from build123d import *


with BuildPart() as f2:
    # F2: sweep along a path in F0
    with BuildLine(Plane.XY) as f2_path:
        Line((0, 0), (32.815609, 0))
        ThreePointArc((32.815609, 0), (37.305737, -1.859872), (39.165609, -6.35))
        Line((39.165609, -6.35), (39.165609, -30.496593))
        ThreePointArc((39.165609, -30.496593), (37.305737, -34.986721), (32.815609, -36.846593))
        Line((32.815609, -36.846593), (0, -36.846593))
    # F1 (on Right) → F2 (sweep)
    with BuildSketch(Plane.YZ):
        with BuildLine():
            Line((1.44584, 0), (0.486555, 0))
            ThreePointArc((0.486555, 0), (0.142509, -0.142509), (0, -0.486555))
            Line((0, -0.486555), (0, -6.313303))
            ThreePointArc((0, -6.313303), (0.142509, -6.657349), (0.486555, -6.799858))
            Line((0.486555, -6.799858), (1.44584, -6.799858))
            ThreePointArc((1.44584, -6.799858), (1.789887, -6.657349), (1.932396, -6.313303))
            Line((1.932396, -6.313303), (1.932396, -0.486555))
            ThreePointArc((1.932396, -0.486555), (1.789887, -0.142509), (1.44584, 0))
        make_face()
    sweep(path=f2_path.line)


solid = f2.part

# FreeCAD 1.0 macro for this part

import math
import FreeCAD as App
import Part
import Sketcher
Q = App.Units.Quantity

doc = App.newDocument("Part")
body = doc.addObject("PartDesign::Body", "Body")

# Sketch on YZ plane
sketch1 = doc.addObject("Sketcher::SketchObject", "Sketch")
body.addObject(sketch1)
sketch1.AttachmentSupport = (doc.YZ_Plane, [""])
sketch1.MapMode = "FlatFace"
sketch1.addGeometry([
    Part.LineSegment(App.Vector(1.45, 0, 0), App.Vector(0.49, 0, 0)),  # 0
    Part.ArcOfCircle(Part.Circle(App.Vector(0.49, -0.49, 0), App.Vector(0, 0, 1), 0.49), math.radians(90), math.radians(180)),  # 1
    Part.LineSegment(App.Vector(0, -0.49, 0), App.Vector(0, -6.31, 0)),  # 2
    Part.ArcOfCircle(Part.Circle(App.Vector(0.49, -6.31, 0), App.Vector(0, 0, 1), 0.49), math.radians(-180), math.radians(-90)),  # 3
    Part.LineSegment(App.Vector(0.49, -6.8, 0), App.Vector(1.45, -6.8, 0)),  # 4
    Part.ArcOfCircle(Part.Circle(App.Vector(1.45, -6.31, 0), App.Vector(0, 0, 1), 0.49), math.radians(-90), math.radians(0)),  # 5
    Part.LineSegment(App.Vector(1.93, -6.31, 0), App.Vector(1.93, -0.49, 0)),  # 6
    Part.ArcOfCircle(Part.Circle(App.Vector(1.45, -0.49, 0), App.Vector(0, 0, 1), 0.49), math.radians(0), math.radians(90)),  # 7
], False)
sketch1.addConstraint([
    Sketcher.Constraint("Coincident", 0, 2, 1, 1),
    Sketcher.Constraint("Coincident", 1, 2, 2, 1),
    Sketcher.Constraint("Coincident", 2, 2, 3, 1),
    Sketcher.Constraint("Coincident", 3, 2, 4, 1),
    Sketcher.Constraint("Tangent", 4, 2, 5, 1),
    Sketcher.Constraint("Coincident", 5, 2, 6, 1),
    Sketcher.Constraint("Coincident", 6, 2, 7, 1),
    Sketcher.Constraint("Tangent", 7, 2, 0, 1),
    Sketcher.Constraint("Horizontal", 0),
    Sketcher.Constraint("Vertical", 2),
    Sketcher.Constraint("Horizontal", 4),
    Sketcher.Constraint("Vertical", 6),
    Sketcher.Constraint("Equal", 1, 3),
    Sketcher.Constraint("Equal", 3, 5),
    Sketcher.Constraint("Equal", 5, 7),
    Sketcher.Constraint("PointOnObject", 0, 2, -1),
    Sketcher.Constraint("PointOnObject", 1, 2, -2),
    Sketcher.Constraint("Horizontal", 7, 3, 1, 2),
    Sketcher.Constraint("Horizontal", 5, 3, 2, 2),
    Sketcher.Constraint("Horizontal", 2, 2, 5, 2),
    Sketcher.Constraint("Horizontal", 1, 2, 6, 2),
    Sketcher.Constraint("Vertical", 3, 3, 0, 2),
    Sketcher.Constraint("Vertical", 0, 2, 3, 2),
    Sketcher.Constraint("Radius", 1, 0.486556),
    Sketcher.Constraint("DistanceY", 2, 2, 2, 1, 5.826748),
    Sketcher.Constraint("DistanceX", 0, 2, 0, 1, 0.959285),
])

# Sketch on XY plane
sketch2 = doc.addObject("Sketcher::SketchObject", "Sketch001")
body.addObject(sketch2)
sketch2.AttachmentSupport = (doc.XY_Plane, [""])
sketch2.MapMode = "FlatFace"
sketch2.addGeometry([
    Part.LineSegment(App.Vector(0, 0, 0), App.Vector(33, 0, 0)),  # 0
    Part.ArcOfCircle(Part.Circle(App.Vector(33, -6, 0), App.Vector(0, 0, 1), 6), math.radians(0), math.radians(90)),  # 1
    Part.LineSegment(App.Vector(39, -6, 0), App.Vector(39, -30, 0)),  # 2
    Part.ArcOfCircle(Part.Circle(App.Vector(33, -30, 0), App.Vector(0, 0, 1), 6), math.radians(-90), math.radians(0)),  # 3
    Part.LineSegment(App.Vector(33, -37, 0), App.Vector(0, -37, 0)),  # 4
], False)
sketch2.addConstraint([
    Sketcher.Constraint("Tangent", 0, 2, 1, 2),
    Sketcher.Constraint("Tangent", 1, 1, 2, 1),
    Sketcher.Constraint("Tangent", 2, 2, 3, 2),
    Sketcher.Constraint("Tangent", 3, 1, 4, 1),
    Sketcher.Constraint("Horizontal", 0),
    Sketcher.Constraint("Vertical", 2),
    Sketcher.Constraint("Horizontal", 4),
    Sketcher.Constraint("Coincident", 0, 1, -1, 1),
    Sketcher.Constraint("Equal", 1, 3),
    Sketcher.Constraint("PointOnObject", 4, 2, -2),
    Sketcher.Constraint("Radius", 1, Q("0.25 in")),
    Sketcher.Constraint("DistanceX", 0, 1, 0, 2, 32.815609),
    Sketcher.Constraint("DistanceY", 2, 2, 2, 1, 24.146593),
])
doc.recompute()

additivepipe = doc.addObject("PartDesign::AdditivePipe", "AdditivePipe")
body.addObject(additivepipe)
additivepipe.Profile = sketch1
additivepipe.Spine = (sketch2, ["Edge1", "Edge2", "Edge3", "Edge4", "Edge5"])

doc.recompute()
